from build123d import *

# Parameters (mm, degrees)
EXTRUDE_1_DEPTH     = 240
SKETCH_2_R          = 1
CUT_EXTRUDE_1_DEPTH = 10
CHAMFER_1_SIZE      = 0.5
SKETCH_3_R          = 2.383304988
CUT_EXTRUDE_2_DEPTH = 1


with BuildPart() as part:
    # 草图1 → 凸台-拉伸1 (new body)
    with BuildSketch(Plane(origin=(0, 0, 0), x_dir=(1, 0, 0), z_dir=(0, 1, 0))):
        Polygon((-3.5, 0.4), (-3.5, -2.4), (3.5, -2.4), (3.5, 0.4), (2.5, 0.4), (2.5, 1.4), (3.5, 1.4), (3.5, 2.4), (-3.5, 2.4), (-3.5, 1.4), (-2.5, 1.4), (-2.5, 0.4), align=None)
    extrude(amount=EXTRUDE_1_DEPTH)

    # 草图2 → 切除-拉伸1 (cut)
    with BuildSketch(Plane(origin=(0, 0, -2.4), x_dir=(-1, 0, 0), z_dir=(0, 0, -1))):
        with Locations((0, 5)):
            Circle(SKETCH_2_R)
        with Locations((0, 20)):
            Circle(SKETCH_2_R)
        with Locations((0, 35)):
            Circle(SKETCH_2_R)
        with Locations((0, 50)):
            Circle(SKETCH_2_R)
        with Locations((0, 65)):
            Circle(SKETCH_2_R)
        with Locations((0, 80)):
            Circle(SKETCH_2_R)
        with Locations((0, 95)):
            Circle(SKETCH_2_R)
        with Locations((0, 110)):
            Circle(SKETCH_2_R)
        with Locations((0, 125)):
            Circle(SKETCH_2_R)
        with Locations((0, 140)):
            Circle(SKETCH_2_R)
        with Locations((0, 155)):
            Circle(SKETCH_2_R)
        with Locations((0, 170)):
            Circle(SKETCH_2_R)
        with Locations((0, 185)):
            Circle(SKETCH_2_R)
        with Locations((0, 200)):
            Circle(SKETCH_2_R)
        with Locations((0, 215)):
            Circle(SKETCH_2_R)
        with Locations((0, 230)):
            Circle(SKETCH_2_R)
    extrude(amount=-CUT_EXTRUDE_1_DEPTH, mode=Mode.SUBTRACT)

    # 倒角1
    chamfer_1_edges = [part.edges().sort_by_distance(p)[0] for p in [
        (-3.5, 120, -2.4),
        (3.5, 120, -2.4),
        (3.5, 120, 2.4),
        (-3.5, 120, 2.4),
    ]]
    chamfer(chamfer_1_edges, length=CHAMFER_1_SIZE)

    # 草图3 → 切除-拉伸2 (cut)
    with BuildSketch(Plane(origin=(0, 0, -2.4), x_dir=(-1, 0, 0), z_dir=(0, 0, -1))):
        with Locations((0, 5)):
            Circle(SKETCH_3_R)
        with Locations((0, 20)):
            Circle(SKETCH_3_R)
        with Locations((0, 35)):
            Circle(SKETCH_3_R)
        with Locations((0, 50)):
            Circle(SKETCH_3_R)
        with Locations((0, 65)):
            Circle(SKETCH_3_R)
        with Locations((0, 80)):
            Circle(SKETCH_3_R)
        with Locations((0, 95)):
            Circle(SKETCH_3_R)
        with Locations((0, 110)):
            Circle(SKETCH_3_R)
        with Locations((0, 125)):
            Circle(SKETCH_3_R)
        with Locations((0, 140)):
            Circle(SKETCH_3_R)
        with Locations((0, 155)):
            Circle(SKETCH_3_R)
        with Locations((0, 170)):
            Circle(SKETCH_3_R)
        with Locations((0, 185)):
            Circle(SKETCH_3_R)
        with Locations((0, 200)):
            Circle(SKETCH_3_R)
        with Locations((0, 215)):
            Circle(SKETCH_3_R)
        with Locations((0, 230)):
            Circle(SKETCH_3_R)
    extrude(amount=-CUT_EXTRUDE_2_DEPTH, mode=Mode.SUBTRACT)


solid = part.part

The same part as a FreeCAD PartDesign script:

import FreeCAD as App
import Part
import Sketcher


def edges_at(feature, points):
    """Names of the edges that pass closest to the given points."""
    edges = feature.Shape.Edges
    near = lambda p: min(range(len(edges)), key=lambda i: edges[i].distToShape(Part.Vertex(*p))[0])
    return sorted({f"Edge{near(p) + 1}" for p in points})

doc = App.newDocument("Part")
body = doc.addObject("PartDesign::Body", "Body")

# Sketch on XZ plane
sketch1 = body.newObject("Sketcher::SketchObject", "Sketch")
sketch1.AttachmentSupport = (doc.getObject("XZ_Plane"), [""])
sketch1.MapMode = "FlatFace"
sketch1.addGeometry([
    Part.LineSegment(App.Vector(-3.5, -0.4, 0), App.Vector(-3.5, 2.4, 0)),  # 0
    Part.LineSegment(App.Vector(-3.5, 2.4, 0), App.Vector(3.5, 2.4, 0)),  # 1
    Part.LineSegment(App.Vector(3.5, 2.4, 0), App.Vector(3.5, -0.4, 0)),  # 2
    Part.LineSegment(App.Vector(3.5, -0.4, 0), App.Vector(2.5, -0.4, 0)),  # 3
    Part.LineSegment(App.Vector(2.5, -0.4, 0), App.Vector(2.5, -1.4, 0)),  # 4
    Part.LineSegment(App.Vector(2.5, -1.4, 0), App.Vector(3.5, -1.4, 0)),  # 5
    Part.LineSegment(App.Vector(3.5, -1.4, 0), App.Vector(3.5, -2.4, 0)),  # 6
    Part.LineSegment(App.Vector(3.5, -2.4, 0), App.Vector(-3.5, -2.4, 0)),  # 7
    Part.LineSegment(App.Vector(-3.5, -2.4, 0), App.Vector(-3.5, -1.4, 0)),  # 8
    Part.LineSegment(App.Vector(-3.5, -1.4, 0), App.Vector(-2.5, -1.4, 0)),  # 9
    Part.LineSegment(App.Vector(-2.5, -1.4, 0), App.Vector(-2.5, -0.4, 0)),  # 10
    Part.LineSegment(App.Vector(-2.5, -0.4, 0), App.Vector(-3.5, -0.4, 0)),  # 11
], False)
sketch1.addConstraint([
    Sketcher.Constraint("Coincident", 0, 2, 1, 1),
    Sketcher.Constraint("Coincident", 1, 2, 2, 1),
    Sketcher.Constraint("Coincident", 2, 2, 3, 1),
    Sketcher.Constraint("Coincident", 3, 2, 4, 1),
    Sketcher.Constraint("Coincident", 4, 2, 5, 1),
    Sketcher.Constraint("Coincident", 5, 2, 6, 1),
    Sketcher.Constraint("Coincident", 6, 2, 7, 1),
    Sketcher.Constraint("Coincident", 7, 2, 8, 1),
    Sketcher.Constraint("Coincident", 8, 2, 9, 1),
    Sketcher.Constraint("Coincident", 9, 2, 10, 1),
    Sketcher.Constraint("Coincident", 10, 2, 11, 1),
    Sketcher.Constraint("Coincident", 11, 2, 0, 1),
    Sketcher.Constraint("Vertical", 0),
    Sketcher.Constraint("Horizontal", 1),
    Sketcher.Constraint("Vertical", 2),
    Sketcher.Constraint("Horizontal", 3),
    Sketcher.Constraint("Vertical", 4),
    Sketcher.Constraint("Horizontal", 5),
    Sketcher.Constraint("Vertical", 6),
    Sketcher.Constraint("Horizontal", 7),
    Sketcher.Constraint("Vertical", 8),
    Sketcher.Constraint("Horizontal", 9),
    Sketcher.Constraint("Vertical", 10),
    Sketcher.Constraint("Horizontal", 11),
    Sketcher.Constraint("Symmetric", 0, 2, 6, 2, -1, 1),
    Sketcher.Constraint("Symmetric", 5, 2, 8, 2, -2),
    Sketcher.Constraint("Symmetric", 3, 2, 10, 2, -2),
    Sketcher.Constraint("Vertical", 2, 2, 5, 2),
    Sketcher.Constraint("Equal", 11, 4),
    Sketcher.Constraint("Equal", 4, 6),
    Sketcher.Constraint("DistanceX", 1, 1, 1, 2, 7.0),
    Sketcher.Constraint("DistanceX", 3, 2, 3, 1, 1.0),
    Sketcher.Constraint("DistanceY", 0, 1, 0, 2, 2.8),
])
pad1 = body.newObject("PartDesign::Pad", "Pad")
pad1.Profile = sketch1
pad1.Length = 240
pad1.Reversed = True

# Sketch on XY plane
sketch2 = body.newObject("Sketcher::SketchObject", "Sketch001")
sketch2.AttachmentSupport = (doc.getObject("XY_Plane"), [""])
sketch2.MapMode = "FlatFace"
sketch2.AttachmentOffset = App.Placement(App.Vector(0, 0, -2.4), App.Rotation())
sketch2.addGeometry([
    Part.Circle(App.Vector(0, 5, 0), App.Vector(0, 0, 1), 1),  # 0
    Part.Circle(App.Vector(0, 20, 0), App.Vector(0, 0, 1), 1),  # 1
    Part.Circle(App.Vector(0, 35, 0), App.Vector(0, 0, 1), 1),  # 2
    Part.Circle(App.Vector(0, 50, 0), App.Vector(0, 0, 1), 1),  # 3
    Part.Circle(App.Vector(0, 65, 0), App.Vector(0, 0, 1), 1),  # 4
    Part.Circle(App.Vector(0, 80, 0), App.Vector(0, 0, 1), 1),  # 5
    Part.Circle(App.Vector(0, 95, 0), App.Vector(0, 0, 1), 1),  # 6
    Part.Circle(App.Vector(0, 110, 0), App.Vector(0, 0, 1), 1),  # 7
    Part.Circle(App.Vector(0, 125, 0), App.Vector(0, 0, 1), 1),  # 8
    Part.Circle(App.Vector(0, 140, 0), App.Vector(0, 0, 1), 1),  # 9
    Part.Circle(App.Vector(0, 155, 0), App.Vector(0, 0, 1), 1),  # 10
    Part.Circle(App.Vector(0, 170, 0), App.Vector(0, 0, 1), 1),  # 11
    Part.Circle(App.Vector(0, 185, 0), App.Vector(0, 0, 1), 1),  # 12
    Part.Circle(App.Vector(0, 200, 0), App.Vector(0, 0, 1), 1),  # 13
    Part.Circle(App.Vector(0, 215, 0), App.Vector(0, 0, 1), 1),  # 14
    Part.Circle(App.Vector(0, 230, 0), App.Vector(0, 0, 1), 1),  # 15
], False)
sketch2.addConstraint([
    Sketcher.Constraint("Equal", 0, 1),
    Sketcher.Constraint("Equal", 1, 2),
    Sketcher.Constraint("Equal", 2, 3),
    Sketcher.Constraint("Equal", 3, 4),
    Sketcher.Constraint("Equal", 4, 5),
    Sketcher.Constraint("Equal", 5, 6),
    Sketcher.Constraint("Equal", 6, 7),
    Sketcher.Constraint("Equal", 7, 8),
    Sketcher.Constraint("Equal", 8, 9),
    Sketcher.Constraint("Equal", 9, 10),
    Sketcher.Constraint("Equal", 10, 11),
    Sketcher.Constraint("Equal", 11, 12),
    Sketcher.Constraint("Equal", 12, 13),
    Sketcher.Constraint("Equal", 13, 14),
    Sketcher.Constraint("Equal", 14, 15),
    Sketcher.Constraint("PointOnObject", 0, 3, -2),
    Sketcher.Constraint("PointOnObject", 1, 3, -2),
    Sketcher.Constraint("PointOnObject", 2, 3, -2),
    Sketcher.Constraint("PointOnObject", 3, 3, -2),
    Sketcher.Constraint("PointOnObject", 4, 3, -2),
    Sketcher.Constraint("PointOnObject", 5, 3, -2),
    Sketcher.Constraint("PointOnObject", 6, 3, -2),
    Sketcher.Constraint("PointOnObject", 7, 3, -2),
    Sketcher.Constraint("PointOnObject", 8, 3, -2),
    Sketcher.Constraint("PointOnObject", 9, 3, -2),
    Sketcher.Constraint("PointOnObject", 10, 3, -2),
    Sketcher.Constraint("PointOnObject", 11, 3, -2),
    Sketcher.Constraint("PointOnObject", 12, 3, -2),
    Sketcher.Constraint("PointOnObject", 13, 3, -2),
    Sketcher.Constraint("PointOnObject", 14, 3, -2),
    Sketcher.Constraint("PointOnObject", 15, 3, -2),
    Sketcher.Constraint("Diameter", 0, 2.0),
    Sketcher.Constraint("DistanceY", -1, 1, 0, 3, 5.0),
    Sketcher.Constraint("DistanceY", -1, 1, 1, 3, 20.0),
    Sketcher.Constraint("DistanceY", -1, 1, 2, 3, 35.0),
    Sketcher.Constraint("DistanceY", -1, 1, 3, 3, 50.0),
    Sketcher.Constraint("DistanceY", -1, 1, 4, 3, 65.0),
    Sketcher.Constraint("DistanceY", -1, 1, 5, 3, 80.0),
    Sketcher.Constraint("DistanceY", -1, 1, 6, 3, 95.0),
    Sketcher.Constraint("DistanceY", -1, 1, 7, 3, 110.0),
    Sketcher.Constraint("DistanceY", -1, 1, 8, 3, 125.0),
    Sketcher.Constraint("DistanceY", -1, 1, 9, 3, 140.0),
    Sketcher.Constraint("DistanceY", -1, 1, 10, 3, 155.0),
    Sketcher.Constraint("DistanceY", -1, 1, 11, 3, 170.0),
    Sketcher.Constraint("DistanceY", -1, 1, 12, 3, 185.0),
    Sketcher.Constraint("DistanceY", -1, 1, 13, 3, 200.0),
    Sketcher.Constraint("DistanceY", -1, 1, 14, 3, 215.0),
    Sketcher.Constraint("DistanceY", -1, 1, 15, 3, 230.0),
])
pocket1 = body.newObject("PartDesign::Pocket", "Pocket")
pocket1.Profile = sketch2
pocket1.Length = 10
pocket1.Reversed = True
doc.recompute()

chamfer = body.newObject("PartDesign::Chamfer", "Chamfer")
chamfer.Base = (pocket1, edges_at(pocket1, [
    (-3.5, 120, -2.4),
    (3.5, 120, -2.4),
    (3.5, 120, 2.4),
    (-3.5, 120, 2.4),
]))
chamfer.Size = 0.5

# Sketch on XY plane
sketch3 = body.newObject("Sketcher::SketchObject", "Sketch002")
sketch3.AttachmentSupport = (doc.getObject("XY_Plane"), [""])
sketch3.MapMode = "FlatFace"
sketch3.AttachmentOffset = App.Placement(App.Vector(0, 0, -2.4), App.Rotation())
sketch3.addGeometry([
    Part.Circle(App.Vector(0, 5, 0), App.Vector(0, 0, 1), 2.383305),  # 0
    Part.Circle(App.Vector(0, 20, 0), App.Vector(0, 0, 1), 2.383305),  # 1
    Part.Circle(App.Vector(0, 35, 0), App.Vector(0, 0, 1), 2.383305),  # 2
    Part.Circle(App.Vector(0, 50, 0), App.Vector(0, 0, 1), 2.383305),  # 3
    Part.Circle(App.Vector(0, 65, 0), App.Vector(0, 0, 1), 2.383305),  # 4
    Part.Circle(App.Vector(0, 80, 0), App.Vector(0, 0, 1), 2.383305),  # 5
    Part.Circle(App.Vector(0, 95, 0), App.Vector(0, 0, 1), 2.383305),  # 6
    Part.Circle(App.Vector(0, 110, 0), App.Vector(0, 0, 1), 2.383305),  # 7
    Part.Circle(App.Vector(0, 125, 0), App.Vector(0, 0, 1), 2.383305),  # 8
    Part.Circle(App.Vector(0, 140, 0), App.Vector(0, 0, 1), 2.383305),  # 9
    Part.Circle(App.Vector(0, 155, 0), App.Vector(0, 0, 1), 2.383305),  # 10
    Part.Circle(App.Vector(0, 170, 0), App.Vector(0, 0, 1), 2.383305),  # 11
    Part.Circle(App.Vector(0, 185, 0), App.Vector(0, 0, 1), 2.383305),  # 12
    Part.Circle(App.Vector(0, 200, 0), App.Vector(0, 0, 1), 2.383305),  # 13
    Part.Circle(App.Vector(0, 215, 0), App.Vector(0, 0, 1), 2.383305),  # 14
    Part.Circle(App.Vector(0, 230, 0), App.Vector(0, 0, 1), 2.383305),  # 15
], False)
sketch3.addConstraint([
    Sketcher.Constraint("Equal", 0, 1),
    Sketcher.Constraint("Equal", 1, 2),
    Sketcher.Constraint("Equal", 2, 3),
    Sketcher.Constraint("Equal", 3, 4),
    Sketcher.Constraint("Equal", 4, 5),
    Sketcher.Constraint("Equal", 5, 6),
    Sketcher.Constraint("Equal", 6, 7),
    Sketcher.Constraint("Equal", 7, 8),
    Sketcher.Constraint("Equal", 8, 9),
    Sketcher.Constraint("Equal", 9, 10),
    Sketcher.Constraint("Equal", 10, 11),
    Sketcher.Constraint("Equal", 11, 12),
    Sketcher.Constraint("Equal", 12, 13),
    Sketcher.Constraint("Equal", 13, 14),
    Sketcher.Constraint("Equal", 14, 15),
    Sketcher.Constraint("PointOnObject", 0, 3, -2),
    Sketcher.Constraint("PointOnObject", 1, 3, -2),
    Sketcher.Constraint("PointOnObject", 2, 3, -2),
    Sketcher.Constraint("PointOnObject", 3, 3, -2),
    Sketcher.Constraint("PointOnObject", 4, 3, -2),
    Sketcher.Constraint("PointOnObject", 5, 3, -2),
    Sketcher.Constraint("PointOnObject", 6, 3, -2),
    Sketcher.Constraint("PointOnObject", 7, 3, -2),
    Sketcher.Constraint("PointOnObject", 8, 3, -2),
    Sketcher.Constraint("PointOnObject", 9, 3, -2),
    Sketcher.Constraint("PointOnObject", 10, 3, -2),
    Sketcher.Constraint("PointOnObject", 11, 3, -2),
    Sketcher.Constraint("PointOnObject", 12, 3, -2),
    Sketcher.Constraint("PointOnObject", 13, 3, -2),
    Sketcher.Constraint("PointOnObject", 14, 3, -2),
    Sketcher.Constraint("PointOnObject", 15, 3, -2),
    Sketcher.Constraint("DistanceY", -1, 1, 0, 3, 5.0),
    Sketcher.Constraint("DistanceY", -1, 1, 1, 3, 20.0),
    Sketcher.Constraint("DistanceY", -1, 1, 2, 3, 35.0),
    Sketcher.Constraint("DistanceY", -1, 1, 3, 3, 50.0),
    Sketcher.Constraint("DistanceY", -1, 1, 4, 3, 65.0),
    Sketcher.Constraint("DistanceY", -1, 1, 5, 3, 80.0),
    Sketcher.Constraint("DistanceY", -1, 1, 6, 3, 95.0),
    Sketcher.Constraint("DistanceY", -1, 1, 7, 3, 110.0),
    Sketcher.Constraint("DistanceY", -1, 1, 8, 3, 125.0),
    Sketcher.Constraint("DistanceY", -1, 1, 9, 3, 140.0),
    Sketcher.Constraint("DistanceY", -1, 1, 10, 3, 155.0),
    Sketcher.Constraint("DistanceY", -1, 1, 11, 3, 170.0),
    Sketcher.Constraint("DistanceY", -1, 1, 12, 3, 185.0),
    Sketcher.Constraint("DistanceY", -1, 1, 13, 3, 200.0),
    Sketcher.Constraint("DistanceY", -1, 1, 14, 3, 215.0),
    Sketcher.Constraint("DistanceY", -1, 1, 15, 3, 230.0),
    Sketcher.Constraint("Diameter", 0, 4.76661),
])
pocket2 = body.newObject("PartDesign::Pocket", "Pocket001")
pocket2.Profile = sketch3
pocket2.Length = 1
pocket2.Reversed = True

doc.recompute()
